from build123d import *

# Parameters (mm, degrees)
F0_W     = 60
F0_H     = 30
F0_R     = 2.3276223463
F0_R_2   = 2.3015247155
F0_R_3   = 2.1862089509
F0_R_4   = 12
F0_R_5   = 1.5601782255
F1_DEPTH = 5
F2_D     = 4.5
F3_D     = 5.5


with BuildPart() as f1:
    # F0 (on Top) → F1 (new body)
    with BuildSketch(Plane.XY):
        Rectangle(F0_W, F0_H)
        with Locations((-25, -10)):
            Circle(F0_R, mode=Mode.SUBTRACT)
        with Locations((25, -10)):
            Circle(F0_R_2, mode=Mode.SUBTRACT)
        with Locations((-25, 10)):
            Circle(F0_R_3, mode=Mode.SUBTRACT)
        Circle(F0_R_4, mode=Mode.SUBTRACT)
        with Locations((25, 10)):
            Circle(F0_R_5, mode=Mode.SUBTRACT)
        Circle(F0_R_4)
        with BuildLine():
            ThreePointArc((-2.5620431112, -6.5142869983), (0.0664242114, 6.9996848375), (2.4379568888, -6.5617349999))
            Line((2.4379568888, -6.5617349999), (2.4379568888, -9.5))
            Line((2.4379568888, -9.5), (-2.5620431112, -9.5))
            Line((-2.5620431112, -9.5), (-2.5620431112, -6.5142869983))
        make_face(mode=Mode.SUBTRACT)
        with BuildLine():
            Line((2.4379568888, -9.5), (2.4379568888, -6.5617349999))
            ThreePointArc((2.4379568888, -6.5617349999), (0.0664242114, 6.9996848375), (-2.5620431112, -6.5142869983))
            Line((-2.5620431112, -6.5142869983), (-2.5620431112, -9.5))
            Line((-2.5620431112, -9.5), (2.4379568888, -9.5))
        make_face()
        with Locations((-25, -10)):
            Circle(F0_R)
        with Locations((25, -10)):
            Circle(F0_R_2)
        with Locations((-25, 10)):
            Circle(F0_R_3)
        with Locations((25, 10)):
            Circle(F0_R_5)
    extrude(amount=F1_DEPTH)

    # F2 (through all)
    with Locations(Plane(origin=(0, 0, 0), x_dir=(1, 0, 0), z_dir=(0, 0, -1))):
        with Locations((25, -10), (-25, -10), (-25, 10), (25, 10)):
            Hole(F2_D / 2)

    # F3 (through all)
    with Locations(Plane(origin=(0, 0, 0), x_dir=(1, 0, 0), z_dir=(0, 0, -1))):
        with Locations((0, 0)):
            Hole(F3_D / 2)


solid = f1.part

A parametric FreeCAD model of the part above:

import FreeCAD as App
import Part
import Sketcher
from FreeCAD import Vector

doc = App.newDocument("Part")
body = doc.addObject("PartDesign::Body", "Body")

# Sketch on XY plane
sketch1 = doc.addObject("Sketcher::SketchObject", "Sketch")
body.addObject(sketch1)
sketch1.AttachmentSupport = (doc.XY_Plane, [""])
sketch1.MapMode = "FlatFace"
sketch1.addGeometry([
    Part.LineSegment(Vector(-30, 15, 0), Vector(-30, -15, 0)),
    Part.LineSegment(Vector(-30, -15, 0), Vector(30, -15, 0)),
    Part.LineSegment(Vector(30, -15, 0), Vector(30, 15, 0)),
    Part.LineSegment(Vector(30, 15, 0), Vector(-30, 15, 0)),
], False)
sketch1.addConstraint([
    Sketcher.Constraint("Coincident", 0, 2, 1, 1),
    Sketcher.Constraint("Coincident", 1, 2, 2, 1),
    Sketcher.Constraint("Coincident", 2, 2, 3, 1),
    Sketcher.Constraint("Coincident", 3, 2, 0, 1),
    Sketcher.Constraint("Vertical", 0),
    Sketcher.Constraint("Horizontal", 1),
    Sketcher.Constraint("Vertical", 2),
    Sketcher.Constraint("Horizontal", 3),
    Sketcher.Constraint("Symmetric", 0, 2, 2, 2, -1, 1),
    Sketcher.Constraint("DistanceX", 1, 1, 1, 2, 60.0),
    Sketcher.Constraint("DistanceY", 0, 2, 0, 1, 30.0),
])
pad1 = doc.addObject("PartDesign::Pad", "Pad")
body.addObject(pad1)
pad1.Profile = sketch1
pad1.Length = 5

# Sketch on XY plane
sketch2 = doc.addObject("Sketcher::SketchObject", "Sketch001")
body.addObject(sketch2)
sketch2.AttachmentSupport = (doc.XY_Plane, [""])
sketch2.MapMode = "FlatFace"
sketch2.addGeometry([
    Part.Circle(Vector(25, 10, 0), Vector(0, 0, 1), 2.2),
    Part.Circle(Vector(-25, 10, 0), Vector(0, 0, 1), 2.2),
    Part.Circle(Vector(-25, -10, 0), Vector(0, 0, 1), 2.2),
    Part.Circle(Vector(25, -10, 0), Vector(0, 0, 1), 2.2),
], False)
sketch2.addConstraint([
    Sketcher.Constraint("Equal", 0, 1),
    Sketcher.Constraint("Equal", 1, 2),
    Sketcher.Constraint("Equal", 2, 3),
    Sketcher.Constraint("Symmetric", 0, 3, 2, 3, -1, 1),
    Sketcher.Constraint("Symmetric", 1, 3, 3, 3, -1, 1),
    Sketcher.Constraint("Symmetric", 0, 3, 1, 3, -2),
    Sketcher.Constraint("Diameter", 0, 4.5),
    Sketcher.Constraint("DistanceX", -1, 1, 0, 3, 25.0),
    Sketcher.Constraint("DistanceY", -1, 1, 0, 3, 10.0),
])
doc.recompute()
hole = doc.addObject("PartDesign::Hole", "Hole")
body.addObject(hole)
hole.Profile = sketch2
hole.ThreadType = "None"
hole.Diameter = 4.5
hole.DepthType = "ThroughAll"
hole.Reversed = True

# Sketch on XY plane
sketch3 = doc.addObject("Sketcher::SketchObject", "Sketch002")
body.addObject(sketch3)
sketch3.AttachmentSupport = (doc.XY_Plane, [""])
sketch3.MapMode = "FlatFace"
sketch3.addGeometry(Part.Circle(Vector(0, 0, 0), Vector(0, 0, 1), 2.8), False)
sketch3.addConstraint([
    Sketcher.Constraint("Coincident", 0, 3, -1, 1),
    Sketcher.Constraint("Diameter", 0, 5.5),
])
doc.recompute()
hole2 = doc.addObject("PartDesign::Hole", "Hole001")
body.addObject(hole2)
hole2.Profile = sketch3
hole2.ThreadType = "None"
hole2.Diameter = 5.5
hole2.DepthType = "ThroughAll"
hole2.Reversed = True

doc.recompute()
